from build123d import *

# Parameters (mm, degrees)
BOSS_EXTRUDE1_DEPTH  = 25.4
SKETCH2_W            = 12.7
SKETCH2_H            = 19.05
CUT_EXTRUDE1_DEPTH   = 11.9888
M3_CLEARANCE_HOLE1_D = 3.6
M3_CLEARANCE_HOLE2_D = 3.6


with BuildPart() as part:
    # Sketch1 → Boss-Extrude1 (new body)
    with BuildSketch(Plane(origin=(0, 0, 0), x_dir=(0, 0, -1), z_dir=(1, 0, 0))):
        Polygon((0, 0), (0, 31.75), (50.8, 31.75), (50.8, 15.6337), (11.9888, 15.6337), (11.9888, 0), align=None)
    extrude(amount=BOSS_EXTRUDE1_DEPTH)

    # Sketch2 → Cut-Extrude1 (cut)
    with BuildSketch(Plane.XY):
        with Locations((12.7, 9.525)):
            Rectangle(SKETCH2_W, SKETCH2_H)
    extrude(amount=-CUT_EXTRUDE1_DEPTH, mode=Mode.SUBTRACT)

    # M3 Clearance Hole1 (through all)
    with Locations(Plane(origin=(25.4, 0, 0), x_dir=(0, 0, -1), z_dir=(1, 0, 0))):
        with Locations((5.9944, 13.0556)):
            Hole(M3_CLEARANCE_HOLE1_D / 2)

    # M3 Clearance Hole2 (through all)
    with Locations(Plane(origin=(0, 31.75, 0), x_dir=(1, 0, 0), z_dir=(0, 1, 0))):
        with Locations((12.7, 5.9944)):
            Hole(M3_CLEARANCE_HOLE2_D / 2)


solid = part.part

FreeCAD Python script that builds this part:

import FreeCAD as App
import Part
import Sketcher
from FreeCAD import Vector
Q = App.Units.Quantity

doc = App.newDocument("Part")
body = doc.addObject("PartDesign::Body", "Body")

# Sketch on YZ plane
sketch1 = body.newObject("Sketcher::SketchObject", "Sketch")
sketch1.AttachmentSupport = (doc.getObject("YZ_Plane"), [""])
sketch1.MapMode = "FlatFace"
sketch1.addGeometry(Part.LineSegment(Vector(32, 0, 0), Vector(0, 0, 0)), False)
sketch1.addGeometry(Part.LineSegment(Vector(0, 0, 0), Vector(0, -12, 0)), False)
sketch1.addGeometry(Part.LineSegment(Vector(0, -12, 0), Vector(16, -12, 0)), False)
sketch1.addGeometry(Part.LineSegment(Vector(16, -12, 0), Vector(16, -51, 0)), False)
sketch1.addGeometry(Part.LineSegment(Vector(16, -51, 0), Vector(32, -51, 0)), False)
sketch1.addGeometry(Part.LineSegment(Vector(32, -51, 0), Vector(32, 0, 0)), False)
sketch1.addConstraint(Sketcher.Constraint("Coincident", 0, 2, 1, 1))
sketch1.addConstraint(Sketcher.Constraint("Coincident", 1, 2, 2, 1))
sketch1.addConstraint(Sketcher.Constraint("Coincident", 2, 2, 3, 1))
sketch1.addConstraint(Sketcher.Constraint("Coincident", 3, 2, 4, 1))
sketch1.addConstraint(Sketcher.Constraint("Coincident", 4, 2, 5, 1))
sketch1.addConstraint(Sketcher.Constraint("Coincident", 5, 2, 0, 1))
sketch1.addConstraint(Sketcher.Constraint("Horizontal", 0))
sketch1.addConstraint(Sketcher.Constraint("Vertical", 1))
sketch1.addConstraint(Sketcher.Constraint("Horizontal", 2))
sketch1.addConstraint(Sketcher.Constraint("Vertical", 3))
sketch1.addConstraint(Sketcher.Constraint("Horizontal", 4))
sketch1.addConstraint(Sketcher.Constraint("Vertical", 5))
sketch1.addConstraint(Sketcher.Constraint("Coincident", 0, 2, -1, 1))
sketch1.addConstraint(Sketcher.Constraint("DistanceY", 5, 1, 5, 2, Q("2 in")))
sketch1.addConstraint(Sketcher.Constraint("DistanceX", 0, 2, 0, 1, Q("1.25 in")))
sketch1.addConstraint(Sketcher.Constraint("DistanceY", 1, 2, 1, 1, Q("0.472 in")))
sketch1.addConstraint(Sketcher.Constraint("DistanceX", 2, 1, 2, 2, Q("0.6155 in")))
pad1 = body.newObject("PartDesign::Pad", "Pad")
pad1.Profile = sketch1
pad1.Length = Q("1 in")

# Sketch on XY plane
sketch2 = body.newObject("Sketcher::SketchObject", "Sketch001")
sketch2.AttachmentSupport = (doc.getObject("XY_Plane"), [""])
sketch2.MapMode = "FlatFace"
sketch2.addGeometry(Part.LineSegment(Vector(6, 19, 0), Vector(6, 0, 0)), False)
sketch2.addGeometry(Part.LineSegment(Vector(6, 0, 0), Vector(19, 0, 0)), False)
sketch2.addGeometry(Part.LineSegment(Vector(19, 0, 0), Vector(19, 19, 0)), False)
sketch2.addGeometry(Part.LineSegment(Vector(19, 19, 0), Vector(6, 19, 0)), False)
sketch2.addConstraint(Sketcher.Constraint("Coincident", 0, 2, 1, 1))
sketch2.addConstraint(Sketcher.Constraint("Coincident", 1, 2, 2, 1))
sketch2.addConstraint(Sketcher.Constraint("Coincident", 2, 2, 3, 1))
sketch2.addConstraint(Sketcher.Constraint("Coincident", 3, 2, 0, 1))
sketch2.addConstraint(Sketcher.Constraint("Vertical", 0))
sketch2.addConstraint(Sketcher.Constraint("Horizontal", 1))
sketch2.addConstraint(Sketcher.Constraint("Vertical", 2))
sketch2.addConstraint(Sketcher.Constraint("Horizontal", 3))
sketch2.addConstraint(Sketcher.Constraint("PointOnObject", 0, 2, -1))
sketch2.addConstraint(Sketcher.Constraint("DistanceX", 1, 1, 1, 2, Q("0.5 in")))
sketch2.addConstraint(Sketcher.Constraint("DistanceY", 0, 2, 0, 1, Q("0.75 in")))
sketch2.addConstraint(Sketcher.Constraint("DistanceX", -1, 1, 0, 2, Q("0.25 in")))
pocket1 = body.newObject("PartDesign::Pocket", "Pocket")
pocket1.Profile = sketch2
pocket1.Length = Q("0.472 in")

# Sketch on YZ plane
sketch3 = body.newObject("Sketcher::SketchObject", "Sketch002")
sketch3.AttachmentSupport = (doc.getObject("YZ_Plane"), [""])
sketch3.MapMode = "FlatFace"
sketch3.AttachmentOffset = App.Placement(Vector(0, 0, 1 * 25.4), App.Rotation())
sketch3.addGeometry(Part.Circle(Vector(13.1, -6, 0), Vector(0, 0, 1), 1.8), False)
sketch3.addConstraint(Sketcher.Constraint("Diameter", 0, Q("3.6 mm")))
sketch3.addConstraint(Sketcher.Constraint("DistanceX", -1, 1, 0, 3, Q("0.514 in")))
sketch3.addConstraint(Sketcher.Constraint("DistanceY", 0, 3, -1, 1, Q("0.236 in")))
doc.recompute()
hole = body.newObject("PartDesign::Hole", "Hole")
hole.Profile = sketch3
hole.ThreadType = "None"
hole.Diameter = 3.6
hole.DepthType = "ThroughAll"

# Sketch on XZ plane
sketch4 = body.newObject("Sketcher::SketchObject", "Sketch003")
sketch4.AttachmentSupport = (doc.getObject("XZ_Plane"), [""])
sketch4.MapMode = "FlatFace"
sketch4.AttachmentOffset = App.Placement(Vector(0, 0, -1.25 * 25.4), App.Rotation())
sketch4.addGeometry(Part.Circle(Vector(12.7, -6, 0), Vector(0, 0, 1), 1.8), False)
sketch4.addConstraint(Sketcher.Constraint("DistanceX", -1, 1, 0, 3, Q("0.5 in")))
sketch4.addConstraint(Sketcher.Constraint("Diameter", 0, Q("3.6 mm")))
sketch4.addConstraint(Sketcher.Constraint("DistanceY", 0, 3, -1, 1, Q("0.236 in")))
doc.recompute()
hole2 = body.newObject("PartDesign::Hole", "Hole001")
hole2.Profile = sketch4
hole2.ThreadType = "None"
hole2.Diameter = 3.6
hole2.DepthType = "ThroughAll"
hole2.Reversed = True

doc.recompute()
